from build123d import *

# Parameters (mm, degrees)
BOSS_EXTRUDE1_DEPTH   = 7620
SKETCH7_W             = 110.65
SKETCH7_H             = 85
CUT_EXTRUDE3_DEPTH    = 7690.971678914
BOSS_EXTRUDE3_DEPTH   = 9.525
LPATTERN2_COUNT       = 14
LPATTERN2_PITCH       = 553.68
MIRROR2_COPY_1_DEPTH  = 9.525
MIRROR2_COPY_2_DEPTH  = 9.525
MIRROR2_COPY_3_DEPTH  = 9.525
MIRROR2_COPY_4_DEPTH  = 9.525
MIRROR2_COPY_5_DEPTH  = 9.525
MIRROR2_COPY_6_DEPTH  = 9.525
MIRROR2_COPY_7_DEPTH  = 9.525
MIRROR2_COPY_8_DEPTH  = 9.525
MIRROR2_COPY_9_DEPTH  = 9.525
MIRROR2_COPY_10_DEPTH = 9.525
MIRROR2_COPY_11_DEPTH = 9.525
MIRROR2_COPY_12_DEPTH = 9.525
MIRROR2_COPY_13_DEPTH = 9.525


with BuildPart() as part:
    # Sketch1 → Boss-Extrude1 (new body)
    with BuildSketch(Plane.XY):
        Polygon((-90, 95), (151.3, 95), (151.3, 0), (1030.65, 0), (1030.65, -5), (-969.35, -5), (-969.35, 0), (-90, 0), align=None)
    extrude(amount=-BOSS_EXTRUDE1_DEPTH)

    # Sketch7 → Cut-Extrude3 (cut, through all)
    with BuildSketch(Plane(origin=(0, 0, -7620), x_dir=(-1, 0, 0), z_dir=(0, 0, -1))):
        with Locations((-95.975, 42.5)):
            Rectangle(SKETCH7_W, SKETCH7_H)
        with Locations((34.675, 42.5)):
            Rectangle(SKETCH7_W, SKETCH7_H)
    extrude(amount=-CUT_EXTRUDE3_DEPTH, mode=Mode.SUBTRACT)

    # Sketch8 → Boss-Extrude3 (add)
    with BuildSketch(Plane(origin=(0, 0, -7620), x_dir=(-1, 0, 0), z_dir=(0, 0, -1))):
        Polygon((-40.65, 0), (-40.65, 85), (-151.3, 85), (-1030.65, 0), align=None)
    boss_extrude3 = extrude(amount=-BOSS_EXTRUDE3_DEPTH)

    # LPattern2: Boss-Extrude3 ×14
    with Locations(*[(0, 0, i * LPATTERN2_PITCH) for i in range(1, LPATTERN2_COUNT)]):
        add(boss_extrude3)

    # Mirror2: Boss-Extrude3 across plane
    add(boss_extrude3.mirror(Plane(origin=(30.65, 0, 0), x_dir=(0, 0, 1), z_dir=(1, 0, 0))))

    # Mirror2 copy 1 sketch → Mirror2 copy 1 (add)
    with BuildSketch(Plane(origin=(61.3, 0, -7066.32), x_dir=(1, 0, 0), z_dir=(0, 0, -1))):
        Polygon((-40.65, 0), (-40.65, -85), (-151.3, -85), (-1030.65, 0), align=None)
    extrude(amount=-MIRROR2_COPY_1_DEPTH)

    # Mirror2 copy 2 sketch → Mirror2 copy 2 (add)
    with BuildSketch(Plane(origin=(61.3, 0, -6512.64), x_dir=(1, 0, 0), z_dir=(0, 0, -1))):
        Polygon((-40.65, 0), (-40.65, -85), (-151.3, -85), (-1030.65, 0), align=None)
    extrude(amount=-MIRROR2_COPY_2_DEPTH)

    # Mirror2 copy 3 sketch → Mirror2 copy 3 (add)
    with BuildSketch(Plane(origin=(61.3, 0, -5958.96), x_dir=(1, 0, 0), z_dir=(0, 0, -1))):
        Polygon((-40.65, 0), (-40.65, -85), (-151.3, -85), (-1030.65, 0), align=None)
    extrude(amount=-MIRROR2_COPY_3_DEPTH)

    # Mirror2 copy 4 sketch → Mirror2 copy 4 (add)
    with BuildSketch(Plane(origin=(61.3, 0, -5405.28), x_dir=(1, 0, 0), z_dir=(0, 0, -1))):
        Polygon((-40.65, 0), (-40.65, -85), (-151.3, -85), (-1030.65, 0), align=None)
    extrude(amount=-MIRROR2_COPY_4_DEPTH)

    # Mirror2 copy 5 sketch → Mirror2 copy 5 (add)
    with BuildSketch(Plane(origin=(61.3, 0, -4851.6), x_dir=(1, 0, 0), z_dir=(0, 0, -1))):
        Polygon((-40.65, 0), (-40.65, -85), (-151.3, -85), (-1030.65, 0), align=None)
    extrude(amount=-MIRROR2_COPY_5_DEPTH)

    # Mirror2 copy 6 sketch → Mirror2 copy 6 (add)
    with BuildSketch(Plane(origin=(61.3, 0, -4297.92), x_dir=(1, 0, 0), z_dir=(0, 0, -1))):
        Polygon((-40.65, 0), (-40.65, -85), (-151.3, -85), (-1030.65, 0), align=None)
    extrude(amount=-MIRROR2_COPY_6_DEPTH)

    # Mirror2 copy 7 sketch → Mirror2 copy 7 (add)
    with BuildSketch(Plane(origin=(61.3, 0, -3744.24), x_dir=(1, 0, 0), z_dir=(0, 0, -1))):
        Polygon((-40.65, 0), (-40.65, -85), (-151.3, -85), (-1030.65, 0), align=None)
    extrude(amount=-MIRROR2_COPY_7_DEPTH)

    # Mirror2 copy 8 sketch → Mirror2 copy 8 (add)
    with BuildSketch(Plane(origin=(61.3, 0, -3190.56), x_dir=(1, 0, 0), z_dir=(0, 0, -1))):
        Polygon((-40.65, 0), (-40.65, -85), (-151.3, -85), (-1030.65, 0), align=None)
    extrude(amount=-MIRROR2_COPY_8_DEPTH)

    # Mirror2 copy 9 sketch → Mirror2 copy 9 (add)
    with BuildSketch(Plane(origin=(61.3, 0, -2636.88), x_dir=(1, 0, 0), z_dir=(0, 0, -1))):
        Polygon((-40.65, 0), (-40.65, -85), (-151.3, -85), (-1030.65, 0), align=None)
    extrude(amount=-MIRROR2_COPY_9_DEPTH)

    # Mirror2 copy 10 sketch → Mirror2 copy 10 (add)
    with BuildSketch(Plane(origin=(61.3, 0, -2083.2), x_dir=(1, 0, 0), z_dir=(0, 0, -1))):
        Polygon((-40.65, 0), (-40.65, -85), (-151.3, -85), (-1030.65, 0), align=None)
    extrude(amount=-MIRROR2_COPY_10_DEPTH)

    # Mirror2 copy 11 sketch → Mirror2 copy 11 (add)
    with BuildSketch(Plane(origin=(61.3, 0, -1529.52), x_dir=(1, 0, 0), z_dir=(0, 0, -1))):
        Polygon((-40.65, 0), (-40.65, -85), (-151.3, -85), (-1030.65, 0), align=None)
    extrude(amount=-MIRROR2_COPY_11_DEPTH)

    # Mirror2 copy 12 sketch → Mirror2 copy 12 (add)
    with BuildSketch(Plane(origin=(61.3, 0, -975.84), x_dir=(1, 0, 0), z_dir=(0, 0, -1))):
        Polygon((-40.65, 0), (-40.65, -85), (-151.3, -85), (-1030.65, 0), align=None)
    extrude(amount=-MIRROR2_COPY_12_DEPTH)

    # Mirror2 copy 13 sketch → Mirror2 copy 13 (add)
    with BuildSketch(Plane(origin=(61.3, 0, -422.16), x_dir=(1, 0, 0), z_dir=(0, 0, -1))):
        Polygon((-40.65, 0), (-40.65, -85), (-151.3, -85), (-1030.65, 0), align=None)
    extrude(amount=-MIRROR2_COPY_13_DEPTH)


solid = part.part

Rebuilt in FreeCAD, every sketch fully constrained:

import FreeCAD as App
import Part
import Sketcher

V = App.Vector


def add_polygon(sketch, points):
    """Adds a closed chain of lines whose ends are joined by coincident constraints."""
    first, n = sketch.GeometryCount, len(points)
    for a, b in zip(points, points[1:] + points[:1]):
        sketch.addGeometry(Part.LineSegment(App.Vector(*a, 0), App.Vector(*b, 0)), False)
    for i in range(n):
        sketch.addConstraint(Sketcher.Constraint("Coincident", first + i, 2, first + (i + 1) % n, 1))

doc = App.newDocument("Part")
params = doc.addObject("Spreadsheet::Sheet", "Params")
for row, (alias, value) in enumerate([
    ("sketch1_width", "2000 mm"),
    ("sketch1_height", "95 mm"),
    ("sketch1_height2", "5 mm"),
    ("sketch1_width2", "241.3 mm"),
    ("pad1_length", "7620 mm"),
    ("sketch2_height", "85 mm"),
    ("sketch2_width", "110.65 mm"),
    ("sketch3_width", "990 mm"),
    ("sketch3_height", "85 mm"),
    ("sketch3_width2", "110.65 mm"),
    ("pad2_length", "9.525 mm"),
    ("linearpattern_pitch", "553.68 mm"),
    ("sketch4_width", "990 mm"),
    ("sketch4_height", "85 mm"),
    ("sketch4_width2", "110.65 mm"),
    ("pad3_length", "9.525 mm"),
    ("sketch5_width", "990 mm"),
    ("sketch5_height", "85 mm"),
    ("sketch5_width2", "110.65 mm"),
    ("pad4_length", "9.525 mm"),
    ("sketch6_width", "990 mm"),
    ("sketch6_height", "85 mm"),
    ("sketch6_width2", "110.65 mm"),
    ("pad5_length", "9.525 mm"),
    ("sketch7_width", "990 mm"),
    ("sketch7_height", "85 mm"),
    ("sketch7_width2", "110.65 mm"),
    ("pad6_length", "9.525 mm"),
    ("sketch8_width", "990 mm"),
    ("sketch8_height", "85 mm"),
    ("sketch8_width2", "110.65 mm"),
    ("pad7_length", "9.525 mm"),
    ("sketch9_width", "990 mm"),
    ("sketch9_height", "85 mm"),
    ("sketch9_width2", "110.65 mm"),
    ("pad8_length", "9.525 mm"),
    ("sketch10_width", "990 mm"),
    ("sketch10_height", "85 mm"),
    ("sketch10_width2", "110.65 mm"),
    ("pad9_length", "9.525 mm"),
    ("sketch11_width", "990 mm"),
    ("sketch11_height", "85 mm"),
    ("sketch11_width2", "110.65 mm"),
    ("pad10_length", "9.525 mm"),
    ("sketch12_width", "990 mm"),
    ("sketch12_height", "85 mm"),
    ("sketch12_width2", "110.65 mm"),
    ("pad11_length", "9.525 mm"),
    ("sketch13_width", "990 mm"),
    ("sketch13_height", "85 mm"),
    ("sketch13_width2", "110.65 mm"),
    ("pad12_length", "9.525 mm"),
    ("sketch14_width", "990 mm"),
    ("sketch14_height", "85 mm"),
    ("sketch14_width2", "110.65 mm"),
    ("pad13_length", "9.525 mm"),
    ("sketch15_width", "990 mm"),
    ("sketch15_height", "85 mm"),
    ("sketch15_width2", "110.65 mm"),
    ("pad14_length", "9.525 mm"),
    ("sketch16_width", "990 mm"),
    ("sketch16_height", "85 mm"),
    ("sketch16_width2", "110.65 mm"),
    ("pad15_length", "9.525 mm"),
], start=1):
    params.set(f"A{row}", alias)
    params.set(f"B{row}", "=" + value)
    params.setAlias(f"B{row}", alias)

body = doc.addObject("PartDesign::Body", "Body")

# Sketch on XY plane
sketch1 = body.newObject("Sketcher::SketchObject", "Sketch")
sketch1.AttachmentSupport = (doc.getObject("XY_Plane"), [""])
sketch1.MapMode = "FlatFace"
add_polygon(sketch1, [(151, 95), (-90, 95), (-90, 0), (-969, 0), (-969, -5), (1031, -5), (1031, 0), (151, 0)])  # lines 0-7
sketch1.addConstraint([
    Sketcher.Constraint("Horizontal", 0),
    Sketcher.Constraint("Vertical", 1),
    Sketcher.Constraint("Horizontal", 2),
    Sketcher.Constraint("Vertical", 3),
    Sketcher.Constraint("Horizontal", 4),
    Sketcher.Constraint("Vertical", 5),
    Sketcher.Constraint("Horizontal", 6),
    Sketcher.Constraint("Vertical", 7),
    Sketcher.Constraint("PointOnObject", 1, 2, -1),
    Sketcher.Constraint("PointOnObject", 5, 2, -1),
    Sketcher.Constraint("Equal", 2, 6),
    Sketcher.Constraint("DistanceX", 4, 1, 4, 2, 2000.0),
    Sketcher.Constraint("DistanceY", 1, 2, 1, 1, 95.0),
    Sketcher.Constraint("DistanceY", 3, 2, 3, 1, 5.0),
    Sketcher.Constraint("DistanceX", 0, 2, 0, 1, 241.3),
    Sketcher.Constraint("DistanceX", 0, 2, -1, 1, 90.0),
])
sketch1.setExpression("Constraints[19]", "Params.sketch1_width")
sketch1.setExpression("Constraints[20]", "Params.sketch1_height")
sketch1.setExpression("Constraints[21]", "Params.sketch1_height2")
sketch1.setExpression("Constraints[22]", "Params.sketch1_width2")
pad1 = body.newObject("PartDesign::Pad", "Pad")
pad1.Profile = sketch1
pad1.setExpression("Length", "Params.pad1_length")
pad1.Reversed = True

# Sketch on XY plane
sketch2 = body.newObject("Sketcher::SketchObject", "Sketch001")
sketch2.AttachmentSupport = (doc.getObject("XY_Plane"), [""])
sketch2.MapMode = "FlatFace"
sketch2.AttachmentOffset = App.Placement(V(0, 0, -7620), App.Rotation())
add_polygon(sketch2, [(151, 85), (151, 0), (41, 0), (41, 85)])  # lines 0-3
add_polygon(sketch2, [(21, 85), (21, 0), (-90, 0), (-90, 85)])  # lines 4-7
sketch2.addConstraint([
    Sketcher.Constraint("Vertical", 0),
    Sketcher.Constraint("Horizontal", 1),
    Sketcher.Constraint("Vertical", 2),
    Sketcher.Constraint("Horizontal", 3),
    Sketcher.Constraint("Vertical", 4),
    Sketcher.Constraint("Horizontal", 5),
    Sketcher.Constraint("Vertical", 6),
    Sketcher.Constraint("Horizontal", 7),
    Sketcher.Constraint("PointOnObject", 0, 2, -1),
    Sketcher.Constraint("PointOnObject", 4, 2, -1),
    Sketcher.Constraint("Horizontal", 3, 2, 6, 2),
    Sketcher.Constraint("Equal", 3, 5),
    Sketcher.Constraint("DistanceY", 0, 2, 0, 1, 85.0),
    Sketcher.Constraint("DistanceX", 5, 2, -1, 1, 90.0),
    Sketcher.Constraint("DistanceX", 4, 2, 1, 2, 20.0),
    Sketcher.Constraint("DistanceX", 1, 2, 1, 1, 110.65),
])
sketch2.setExpression("Constraints[20]", "Params.sketch2_height")
sketch2.setExpression("Constraints[23]", "Params.sketch2_width")
pocket1 = body.newObject("PartDesign::Pocket", "Pocket")
pocket1.Profile = sketch2
pocket1.Type = "ThroughAll"
pocket1.Reversed = True

# Sketch on XY plane
sketch3 = body.newObject("Sketcher::SketchObject", "Sketch002")
sketch3.AttachmentSupport = (doc.getObject("XY_Plane"), [""])
sketch3.MapMode = "FlatFace"
sketch3.AttachmentOffset = App.Placement(V(0, 0, -7620), App.Rotation())
add_polygon(sketch3, [(41, 0), (41, 85), (151, 85), (1031, 0)])  # lines 0-3
sketch3.addConstraint([
    Sketcher.Constraint("Vertical", 0),
    Sketcher.Constraint("Horizontal", 1),
    Sketcher.Constraint("Horizontal", 3),
    Sketcher.Constraint("PointOnObject", 2, 2, -1),
    Sketcher.Constraint("DistanceX", 3, 2, 3, 1, 990.0),
    Sketcher.Constraint("DistanceY", 0, 1, 0, 2, 85.0),
    Sketcher.Constraint("DistanceX", 1, 1, 1, 2, 110.65),
    Sketcher.Constraint("DistanceX", -1, 1, 1, 2, 151.3),
])
sketch3.setExpression("Constraints[8]", "Params.sketch3_width")
sketch3.setExpression("Constraints[9]", "Params.sketch3_height")
sketch3.setExpression("Constraints[10]", "Params.sketch3_width2")
pad2 = body.newObject("PartDesign::Pad", "Pad001")
pad2.Profile = sketch3
pad2.setExpression("Length", "Params.pad2_length")
doc.recompute()

linearpattern = body.newObject("PartDesign::LinearPattern", "LinearPattern")
linearpattern.Originals = [pad2]
linearpattern.Direction = (doc.getObject("Z_Axis"), [""])
linearpattern.Mode = "offset"
linearpattern.setExpression("Offset", "Params.linearpattern_pitch")
linearpattern.Occurrences = 14
body.Tip = linearpattern
doc.recompute()

datumplane = body.newObject("PartDesign::Plane", "DatumPlane")
datumplane.AttachmentSupport = (doc.getObject("YZ_Plane"), [""])
datumplane.MapMode = "FlatFace"
datumplane.AttachmentOffset = App.Placement(V(0, 0, 30.65), App.Rotation())
mirrored = body.newObject("PartDesign::Mirrored", "Mirrored")
mirrored.Originals = [pad2]
mirrored.MirrorPlane = (datumplane, [""])
body.Tip = mirrored

# Sketch on XY plane
sketch4 = body.newObject("Sketcher::SketchObject", "Sketch003")
sketch4.AttachmentSupport = (doc.getObject("XY_Plane"), [""])
sketch4.MapMode = "FlatFace"
sketch4.AttachmentOffset = App.Placement(V(0, 0, -7066.32), App.Rotation())
add_polygon(sketch4, [(21, 85), (21, 0), (-969, 0), (-90, 85)])  # lines 0-3
sketch4.addConstraint([
    Sketcher.Constraint("Vertical", 0),
    Sketcher.Constraint("Horizontal", 1),
    Sketcher.Constraint("Horizontal", 3),
    Sketcher.Constraint("PointOnObject", 0, 2, -1),
    Sketcher.Constraint("DistanceX", 1, 2, 1, 1, 990.0),
    Sketcher.Constraint("DistanceY", 0, 2, 0, 1, 85.0),
    Sketcher.Constraint("DistanceX", 2, 2, -1, 1, 90.0),
    Sketcher.Constraint("DistanceX", 3, 1, 3, 2, 110.65),
])
sketch4.setExpression("Constraints[8]", "Params.sketch4_width")
sketch4.setExpression("Constraints[9]", "Params.sketch4_height")
sketch4.setExpression("Constraints[11]", "Params.sketch4_width2")
pad3 = body.newObject("PartDesign::Pad", "Pad002")
pad3.Profile = sketch4
pad3.setExpression("Length", "Params.pad3_length")

# Sketch on XY plane
sketch5 = body.newObject("Sketcher::SketchObject", "Sketch004")
sketch5.AttachmentSupport = (doc.getObject("XY_Plane"), [""])
sketch5.MapMode = "FlatFace"
sketch5.AttachmentOffset = App.Placement(V(0, 0, -6512.64), App.Rotation())
add_polygon(sketch5, [(21, 85), (21, 0), (-969, 0), (-90, 85)])  # lines 0-3
sketch5.addConstraint([
    Sketcher.Constraint("Vertical", 0),
    Sketcher.Constraint("Horizontal", 1),
    Sketcher.Constraint("Horizontal", 3),
    Sketcher.Constraint("PointOnObject", 0, 2, -1),
    Sketcher.Constraint("DistanceX", 1, 2, 1, 1, 990.0),
    Sketcher.Constraint("DistanceY", 0, 2, 0, 1, 85.0),
    Sketcher.Constraint("DistanceX", 2, 2, -1, 1, 90.0),
    Sketcher.Constraint("DistanceX", 3, 1, 3, 2, 110.65),
])
sketch5.setExpression("Constraints[8]", "Params.sketch5_width")
sketch5.setExpression("Constraints[9]", "Params.sketch5_height")
sketch5.setExpression("Constraints[11]", "Params.sketch5_width2")
pad4 = body.newObject("PartDesign::Pad", "Pad003")
pad4.Profile = sketch5
pad4.setExpression("Length", "Params.pad4_length")

# Sketch on XY plane
sketch6 = body.newObject("Sketcher::SketchObject", "Sketch005")
sketch6.AttachmentSupport = (doc.getObject("XY_Plane"), [""])
sketch6.MapMode = "FlatFace"
sketch6.AttachmentOffset = App.Placement(V(0, 0, -5958.96), App.Rotation())
add_polygon(sketch6, [(21, 85), (21, 0), (-969, 0), (-90, 85)])  # lines 0-3
sketch6.addConstraint([
    Sketcher.Constraint("Vertical", 0),
    Sketcher.Constraint("Horizontal", 1),
    Sketcher.Constraint("Horizontal", 3),
    Sketcher.Constraint("PointOnObject", 0, 2, -1),
    Sketcher.Constraint("DistanceX", 1, 2, 1, 1, 990.0),
    Sketcher.Constraint("DistanceY", 0, 2, 0, 1, 85.0),
    Sketcher.Constraint("DistanceX", 2, 2, -1, 1, 90.0),
    Sketcher.Constraint("DistanceX", 3, 1, 3, 2, 110.65),
])
sketch6.setExpression("Constraints[8]", "Params.sketch6_width")
sketch6.setExpression("Constraints[9]", "Params.sketch6_height")
sketch6.setExpression("Constraints[11]", "Params.sketch6_width2")
pad5 = body.newObject("PartDesign::Pad", "Pad004")
pad5.Profile = sketch6
pad5.setExpression("Length", "Params.pad5_length")

# Sketch on XY plane
sketch7 = body.newObject("Sketcher::SketchObject", "Sketch006")
sketch7.AttachmentSupport = (doc.getObject("XY_Plane"), [""])
sketch7.MapMode = "FlatFace"
sketch7.AttachmentOffset = App.Placement(V(0, 0, -5405.28), App.Rotation())
add_polygon(sketch7, [(21, 85), (21, 0), (-969, 0), (-90, 85)])  # lines 0-3
sketch7.addConstraint([
    Sketcher.Constraint("Vertical", 0),
    Sketcher.Constraint("Horizontal", 1),
    Sketcher.Constraint("Horizontal", 3),
    Sketcher.Constraint("PointOnObject", 0, 2, -1),
    Sketcher.Constraint("DistanceX", 1, 2, 1, 1, 990.0),
    Sketcher.Constraint("DistanceY", 0, 2, 0, 1, 85.0),
    Sketcher.Constraint("DistanceX", 2, 2, -1, 1, 90.0),
    Sketcher.Constraint("DistanceX", 3, 1, 3, 2, 110.65),
])
sketch7.setExpression("Constraints[8]", "Params.sketch7_width")
sketch7.setExpression("Constraints[9]", "Params.sketch7_height")
sketch7.setExpression("Constraints[11]", "Params.sketch7_width2")
pad6 = body.newObject("PartDesign::Pad", "Pad005")
pad6.Profile = sketch7
pad6.setExpression("Length", "Params.pad6_length")

# Sketch on XY plane
sketch8 = body.newObject("Sketcher::SketchObject", "Sketch007")
sketch8.AttachmentSupport = (doc.getObject("XY_Plane"), [""])
sketch8.MapMode = "FlatFace"
sketch8.AttachmentOffset = App.Placement(V(0, 0, -4851.6), App.Rotation())
add_polygon(sketch8, [(21, 85), (21, 0), (-969, 0), (-90, 85)])  # lines 0-3
sketch8.addConstraint([
    Sketcher.Constraint("Vertical", 0),
    Sketcher.Constraint("Horizontal", 1),
    Sketcher.Constraint("Horizontal", 3),
    Sketcher.Constraint("PointOnObject", 0, 2, -1),
    Sketcher.Constraint("DistanceX", 1, 2, 1, 1, 990.0),
    Sketcher.Constraint("DistanceY", 0, 2, 0, 1, 85.0),
    Sketcher.Constraint("DistanceX", 2, 2, -1, 1, 90.0),
    Sketcher.Constraint("DistanceX", 3, 1, 3, 2, 110.65),
])
sketch8.setExpression("Constraints[8]", "Params.sketch8_width")
sketch8.setExpression("Constraints[9]", "Params.sketch8_height")
sketch8.setExpression("Constraints[11]", "Params.sketch8_width2")
pad7 = body.newObject("PartDesign::Pad", "Pad006")
pad7.Profile = sketch8
pad7.setExpression("Length", "Params.pad7_length")

# Sketch on XY plane
sketch9 = body.newObject("Sketcher::SketchObject", "Sketch008")
sketch9.AttachmentSupport = (doc.getObject("XY_Plane"), [""])
sketch9.MapMode = "FlatFace"
sketch9.AttachmentOffset = App.Placement(V(0, 0, -4297.92), App.Rotation())
add_polygon(sketch9, [(21, 85), (21, 0), (-969, 0), (-90, 85)])  # lines 0-3
sketch9.addConstraint([
    Sketcher.Constraint("Vertical", 0),
    Sketcher.Constraint("Horizontal", 1),
    Sketcher.Constraint("Horizontal", 3),
    Sketcher.Constraint("PointOnObject", 0, 2, -1),
    Sketcher.Constraint("DistanceX", 1, 2, 1, 1, 990.0),
    Sketcher.Constraint("DistanceY", 0, 2, 0, 1, 85.0),
    Sketcher.Constraint("DistanceX", 2, 2, -1, 1, 90.0),
    Sketcher.Constraint("DistanceX", 3, 1, 3, 2, 110.65),
])
sketch9.setExpression("Constraints[8]", "Params.sketch9_width")
sketch9.setExpression("Constraints[9]", "Params.sketch9_height")
sketch9.setExpression("Constraints[11]", "Params.sketch9_width2")
pad8 = body.newObject("PartDesign::Pad", "Pad007")
pad8.Profile = sketch9
pad8.setExpression("Length", "Params.pad8_length")

# Sketch on XY plane
sketch10 = body.newObject("Sketcher::SketchObject", "Sketch009")
sketch10.AttachmentSupport = (doc.getObject("XY_Plane"), [""])
sketch10.MapMode = "FlatFace"
sketch10.AttachmentOffset = App.Placement(V(0, 0, -3744.24), App.Rotation())
add_polygon(sketch10, [(21, 85), (21, 0), (-969, 0), (-90, 85)])  # lines 0-3
sketch10.addConstraint([
    Sketcher.Constraint("Vertical", 0),
    Sketcher.Constraint("Horizontal", 1),
    Sketcher.Constraint("Horizontal", 3),
    Sketcher.Constraint("PointOnObject", 0, 2, -1),
    Sketcher.Constraint("DistanceX", 1, 2, 1, 1, 990.0),
    Sketcher.Constraint("DistanceY", 0, 2, 0, 1, 85.0),
    Sketcher.Constraint("DistanceX", 2, 2, -1, 1, 90.0),
    Sketcher.Constraint("DistanceX", 3, 1, 3, 2, 110.65),
])
sketch10.setExpression("Constraints[8]", "Params.sketch10_width")
sketch10.setExpression("Constraints[9]", "Params.sketch10_height")
sketch10.setExpression("Constraints[11]", "Params.sketch10_width2")
pad9 = body.newObject("PartDesign::Pad", "Pad008")
pad9.Profile = sketch10
pad9.setExpression("Length", "Params.pad9_length")

# Sketch on XY plane
sketch11 = body.newObject("Sketcher::SketchObject", "Sketch010")
sketch11.AttachmentSupport = (doc.getObject("XY_Plane"), [""])
sketch11.MapMode = "FlatFace"
sketch11.AttachmentOffset = App.Placement(V(0, 0, -3190.56), App.Rotation())
add_polygon(sketch11, [(21, 85), (21, 0), (-969, 0), (-90, 85)])  # lines 0-3
sketch11.addConstraint([
    Sketcher.Constraint("Vertical", 0),
    Sketcher.Constraint("Horizontal", 1),
    Sketcher.Constraint("Horizontal", 3),
    Sketcher.Constraint("PointOnObject", 0, 2, -1),
    Sketcher.Constraint("DistanceX", 1, 2, 1, 1, 990.0),
    Sketcher.Constraint("DistanceY", 0, 2, 0, 1, 85.0),
    Sketcher.Constraint("DistanceX", 2, 2, -1, 1, 90.0),
    Sketcher.Constraint("DistanceX", 3, 1, 3, 2, 110.65),
])
sketch11.setExpression("Constraints[8]", "Params.sketch11_width")
sketch11.setExpression("Constraints[9]", "Params.sketch11_height")
sketch11.setExpression("Constraints[11]", "Params.sketch11_width2")
pad10 = body.newObject("PartDesign::Pad", "Pad009")
pad10.Profile = sketch11
pad10.setExpression("Length", "Params.pad10_length")

# Sketch on XY plane
sketch12 = body.newObject("Sketcher::SketchObject", "Sketch011")
sketch12.AttachmentSupport = (doc.getObject("XY_Plane"), [""])
sketch12.MapMode = "FlatFace"
sketch12.AttachmentOffset = App.Placement(V(0, 0, -2636.88), App.Rotation())
add_polygon(sketch12, [(21, 85), (21, 0), (-969, 0), (-90, 85)])  # lines 0-3
sketch12.addConstraint([
    Sketcher.Constraint("Vertical", 0),
    Sketcher.Constraint("Horizontal", 1),
    Sketcher.Constraint("Horizontal", 3),
    Sketcher.Constraint("PointOnObject", 0, 2, -1),
    Sketcher.Constraint("DistanceX", 1, 2, 1, 1, 990.0),
    Sketcher.Constraint("DistanceY", 0, 2, 0, 1, 85.0),
    Sketcher.Constraint("DistanceX", 2, 2, -1, 1, 90.0),
    Sketcher.Constraint("DistanceX", 3, 1, 3, 2, 110.65),
])
sketch12.setExpression("Constraints[8]", "Params.sketch12_width")
sketch12.setExpression("Constraints[9]", "Params.sketch12_height")
sketch12.setExpression("Constraints[11]", "Params.sketch12_width2")
pad11 = body.newObject("PartDesign::Pad", "Pad010")
pad11.Profile = sketch12
pad11.setExpression("Length", "Params.pad11_length")

# Sketch on XY plane
sketch13 = body.newObject("Sketcher::SketchObject", "Sketch012")
sketch13.AttachmentSupport = (doc.getObject("XY_Plane"), [""])
sketch13.MapMode = "FlatFace"
sketch13.AttachmentOffset = App.Placement(V(0, 0, -2083.2), App.Rotation())
add_polygon(sketch13, [(21, 85), (21, 0), (-969, 0), (-90, 85)])  # lines 0-3
sketch13.addConstraint([
    Sketcher.Constraint("Vertical", 0),
    Sketcher.Constraint("Horizontal", 1),
    Sketcher.Constraint("Horizontal", 3),
    Sketcher.Constraint("PointOnObject", 0, 2, -1),
    Sketcher.Constraint("DistanceX", 1, 2, 1, 1, 990.0),
    Sketcher.Constraint("DistanceY", 0, 2, 0, 1, 85.0),
    Sketcher.Constraint("DistanceX", 2, 2, -1, 1, 90.0),
    Sketcher.Constraint("DistanceX", 3, 1, 3, 2, 110.65),
])
sketch13.setExpression("Constraints[8]", "Params.sketch13_width")
sketch13.setExpression("Constraints[9]", "Params.sketch13_height")
sketch13.setExpression("Constraints[11]", "Params.sketch13_width2")
pad12 = body.newObject("PartDesign::Pad", "Pad011")
pad12.Profile = sketch13
pad12.setExpression("Length", "Params.pad12_length")

# Sketch on XY plane
sketch14 = body.newObject("Sketcher::SketchObject", "Sketch013")
sketch14.AttachmentSupport = (doc.getObject("XY_Plane"), [""])
sketch14.MapMode = "FlatFace"
sketch14.AttachmentOffset = App.Placement(V(0, 0, -1529.52), App.Rotation())
add_polygon(sketch14, [(21, 85), (21, 0), (-969, 0), (-90, 85)])  # lines 0-3
sketch14.addConstraint([
    Sketcher.Constraint("Vertical", 0),
    Sketcher.Constraint("Horizontal", 1),
    Sketcher.Constraint("Horizontal", 3),
    Sketcher.Constraint("PointOnObject", 0, 2, -1),
    Sketcher.Constraint("DistanceX", 1, 2, 1, 1, 990.0),
    Sketcher.Constraint("DistanceY", 0, 2, 0, 1, 85.0),
    Sketcher.Constraint("DistanceX", 2, 2, -1, 1, 90.0),
    Sketcher.Constraint("DistanceX", 3, 1, 3, 2, 110.65),
])
sketch14.setExpression("Constraints[8]", "Params.sketch14_width")
sketch14.setExpression("Constraints[9]", "Params.sketch14_height")
sketch14.setExpression("Constraints[11]", "Params.sketch14_width2")
pad13 = body.newObject("PartDesign::Pad", "Pad012")
pad13.Profile = sketch14
pad13.setExpression("Length", "Params.pad13_length")

# Sketch on XY plane
sketch15 = body.newObject("Sketcher::SketchObject", "Sketch014")
sketch15.AttachmentSupport = (doc.getObject("XY_Plane"), [""])
sketch15.MapMode = "FlatFace"
sketch15.AttachmentOffset = App.Placement(V(0, 0, -975.84), App.Rotation())
add_polygon(sketch15, [(21, 85), (21, 0), (-969, 0), (-90, 85)])  # lines 0-3
sketch15.addConstraint([
    Sketcher.Constraint("Vertical", 0),
    Sketcher.Constraint("Horizontal", 1),
    Sketcher.Constraint("Horizontal", 3),
    Sketcher.Constraint("PointOnObject", 0, 2, -1),
    Sketcher.Constraint("DistanceX", 1, 2, 1, 1, 990.0),
    Sketcher.Constraint("DistanceY", 0, 2, 0, 1, 85.0),
    Sketcher.Constraint("DistanceX", 2, 2, -1, 1, 90.0),
    Sketcher.Constraint("DistanceX", 3, 1, 3, 2, 110.65),
])
sketch15.setExpression("Constraints[8]", "Params.sketch15_width")
sketch15.setExpression("Constraints[9]", "Params.sketch15_height")
sketch15.setExpression("Constraints[11]", "Params.sketch15_width2")
pad14 = body.newObject("PartDesign::Pad", "Pad013")
pad14.Profile = sketch15
pad14.setExpression("Length", "Params.pad14_length")

# Sketch on XY plane
sketch16 = body.newObject("Sketcher::SketchObject", "Sketch015")
sketch16.AttachmentSupport = (doc.getObject("XY_Plane"), [""])
sketch16.MapMode = "FlatFace"
sketch16.AttachmentOffset = App.Placement(V(0, 0, -422.16), App.Rotation())
add_polygon(sketch16, [(21, 85), (21, 0), (-969, 0), (-90, 85)])  # lines 0-3
sketch16.addConstraint([
    Sketcher.Constraint("Vertical", 0),
    Sketcher.Constraint("Horizontal", 1),
    Sketcher.Constraint("Horizontal", 3),
    Sketcher.Constraint("PointOnObject", 0, 2, -1),
    Sketcher.Constraint("DistanceX", 1, 2, 1, 1, 990.0),
    Sketcher.Constraint("DistanceY", 0, 2, 0, 1, 85.0),
    Sketcher.Constraint("DistanceX", 2, 2, -1, 1, 90.0),
    Sketcher.Constraint("DistanceX", 3, 1, 3, 2, 110.65),
])
sketch16.setExpression("Constraints[8]", "Params.sketch16_width")
sketch16.setExpression("Constraints[9]", "Params.sketch16_height")
sketch16.setExpression("Constraints[11]", "Params.sketch16_width2")
pad15 = body.newObject("PartDesign::Pad", "Pad014")
pad15.Profile = sketch16
pad15.setExpression("Length", "Params.pad15_length")

doc.recompute()
